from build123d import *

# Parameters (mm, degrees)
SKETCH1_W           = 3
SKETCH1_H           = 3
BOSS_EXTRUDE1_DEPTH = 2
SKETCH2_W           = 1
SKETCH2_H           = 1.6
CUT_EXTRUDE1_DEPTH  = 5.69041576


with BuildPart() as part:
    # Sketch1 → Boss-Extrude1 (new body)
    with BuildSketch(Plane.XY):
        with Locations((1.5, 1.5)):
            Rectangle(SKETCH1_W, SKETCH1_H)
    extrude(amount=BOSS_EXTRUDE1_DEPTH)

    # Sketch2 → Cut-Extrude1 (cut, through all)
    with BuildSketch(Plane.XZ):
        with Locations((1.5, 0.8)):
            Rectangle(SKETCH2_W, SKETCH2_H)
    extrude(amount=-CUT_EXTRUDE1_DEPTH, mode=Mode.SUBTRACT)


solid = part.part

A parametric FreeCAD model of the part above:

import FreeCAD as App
import Part
import Sketcher
from FreeCAD import Vector
Q = App.Units.Quantity

doc = App.newDocument("Part")
body = doc.addObject("PartDesign::Body", "Body")

# Sketch on XY plane
sketch1 = body.newObject("Sketcher::SketchObject", "Sketch")
sketch1.AttachmentSupport = (doc.getObject("XY_Plane"), [""])
sketch1.MapMode = "FlatFace"
sketch1.addGeometry(Part.LineSegment(Vector(0, 3, 0), Vector(0, 0, 0)), False)
sketch1.addGeometry(Part.LineSegment(Vector(0, 0, 0), Vector(3, 0, 0)), False)
sketch1.addGeometry(Part.LineSegment(Vector(3, 0, 0), Vector(3, 3, 0)), False)
sketch1.addGeometry(Part.LineSegment(Vector(3, 3, 0), Vector(0, 3, 0)), False)
sketch1.addConstraint(Sketcher.Constraint("Coincident", 0, 2, 1, 1))
sketch1.addConstraint(Sketcher.Constraint("Coincident", 1, 2, 2, 1))
sketch1.addConstraint(Sketcher.Constraint("Coincident", 2, 2, 3, 1))
sketch1.addConstraint(Sketcher.Constraint("Coincident", 3, 2, 0, 1))
sketch1.addConstraint(Sketcher.Constraint("Vertical", 0))
sketch1.addConstraint(Sketcher.Constraint("Horizontal", 1))
sketch1.addConstraint(Sketcher.Constraint("Vertical", 2))
sketch1.addConstraint(Sketcher.Constraint("Horizontal", 3))
sketch1.addConstraint(Sketcher.Constraint("Coincident", 0, 2, -1, 1))
sketch1.addConstraint(Sketcher.Constraint("Equal", 3, 0))
sketch1.addConstraint(Sketcher.Constraint("DistanceX", 1, 1, 1, 2, Q("3 mm")))
pad1 = body.newObject("PartDesign::Pad", "Pad")
pad1.Profile = sketch1
pad1.Length = 2

# Sketch on XZ plane
sketch2 = body.newObject("Sketcher::SketchObject", "Sketch001")
sketch2.AttachmentSupport = (doc.getObject("XZ_Plane"), [""])
sketch2.MapMode = "FlatFace"
sketch2.addGeometry(Part.LineSegment(Vector(1, 1.6, 0), Vector(1, 0, 0)), False)
sketch2.addGeometry(Part.LineSegment(Vector(1, 0, 0), Vector(2, 0, 0)), False)
sketch2.addGeometry(Part.LineSegment(Vector(2, 0, 0), Vector(2, 1.6, 0)), False)
sketch2.addGeometry(Part.LineSegment(Vector(2, 1.6, 0), Vector(1, 1.6, 0)), False)
sketch2.addConstraint(Sketcher.Constraint("Coincident", 0, 2, 1, 1))
sketch2.addConstraint(Sketcher.Constraint("Coincident", 1, 2, 2, 1))
sketch2.addConstraint(Sketcher.Constraint("Coincident", 2, 2, 3, 1))
sketch2.addConstraint(Sketcher.Constraint("Coincident", 3, 2, 0, 1))
sketch2.addConstraint(Sketcher.Constraint("Vertical", 0))
sketch2.addConstraint(Sketcher.Constraint("Horizontal", 1))
sketch2.addConstraint(Sketcher.Constraint("Vertical", 2))
sketch2.addConstraint(Sketcher.Constraint("Horizontal", 3))
sketch2.addConstraint(Sketcher.Constraint("PointOnObject", 0, 2, -1))
sketch2.addConstraint(Sketcher.Constraint("DistanceX", 1, 1, 1, 2, Q("1 mm")))
sketch2.addConstraint(Sketcher.Constraint("DistanceY", 0, 2, 0, 1, Q("1.6 mm")))
sketch2.addConstraint(Sketcher.Constraint("DistanceX", -1, 1, 0, 2, Q("1 mm")))
pocket1 = body.newObject("PartDesign::Pocket", "Pocket")
pocket1.Profile = sketch2
pocket1.Type = "ThroughAll"

doc.recompute()
